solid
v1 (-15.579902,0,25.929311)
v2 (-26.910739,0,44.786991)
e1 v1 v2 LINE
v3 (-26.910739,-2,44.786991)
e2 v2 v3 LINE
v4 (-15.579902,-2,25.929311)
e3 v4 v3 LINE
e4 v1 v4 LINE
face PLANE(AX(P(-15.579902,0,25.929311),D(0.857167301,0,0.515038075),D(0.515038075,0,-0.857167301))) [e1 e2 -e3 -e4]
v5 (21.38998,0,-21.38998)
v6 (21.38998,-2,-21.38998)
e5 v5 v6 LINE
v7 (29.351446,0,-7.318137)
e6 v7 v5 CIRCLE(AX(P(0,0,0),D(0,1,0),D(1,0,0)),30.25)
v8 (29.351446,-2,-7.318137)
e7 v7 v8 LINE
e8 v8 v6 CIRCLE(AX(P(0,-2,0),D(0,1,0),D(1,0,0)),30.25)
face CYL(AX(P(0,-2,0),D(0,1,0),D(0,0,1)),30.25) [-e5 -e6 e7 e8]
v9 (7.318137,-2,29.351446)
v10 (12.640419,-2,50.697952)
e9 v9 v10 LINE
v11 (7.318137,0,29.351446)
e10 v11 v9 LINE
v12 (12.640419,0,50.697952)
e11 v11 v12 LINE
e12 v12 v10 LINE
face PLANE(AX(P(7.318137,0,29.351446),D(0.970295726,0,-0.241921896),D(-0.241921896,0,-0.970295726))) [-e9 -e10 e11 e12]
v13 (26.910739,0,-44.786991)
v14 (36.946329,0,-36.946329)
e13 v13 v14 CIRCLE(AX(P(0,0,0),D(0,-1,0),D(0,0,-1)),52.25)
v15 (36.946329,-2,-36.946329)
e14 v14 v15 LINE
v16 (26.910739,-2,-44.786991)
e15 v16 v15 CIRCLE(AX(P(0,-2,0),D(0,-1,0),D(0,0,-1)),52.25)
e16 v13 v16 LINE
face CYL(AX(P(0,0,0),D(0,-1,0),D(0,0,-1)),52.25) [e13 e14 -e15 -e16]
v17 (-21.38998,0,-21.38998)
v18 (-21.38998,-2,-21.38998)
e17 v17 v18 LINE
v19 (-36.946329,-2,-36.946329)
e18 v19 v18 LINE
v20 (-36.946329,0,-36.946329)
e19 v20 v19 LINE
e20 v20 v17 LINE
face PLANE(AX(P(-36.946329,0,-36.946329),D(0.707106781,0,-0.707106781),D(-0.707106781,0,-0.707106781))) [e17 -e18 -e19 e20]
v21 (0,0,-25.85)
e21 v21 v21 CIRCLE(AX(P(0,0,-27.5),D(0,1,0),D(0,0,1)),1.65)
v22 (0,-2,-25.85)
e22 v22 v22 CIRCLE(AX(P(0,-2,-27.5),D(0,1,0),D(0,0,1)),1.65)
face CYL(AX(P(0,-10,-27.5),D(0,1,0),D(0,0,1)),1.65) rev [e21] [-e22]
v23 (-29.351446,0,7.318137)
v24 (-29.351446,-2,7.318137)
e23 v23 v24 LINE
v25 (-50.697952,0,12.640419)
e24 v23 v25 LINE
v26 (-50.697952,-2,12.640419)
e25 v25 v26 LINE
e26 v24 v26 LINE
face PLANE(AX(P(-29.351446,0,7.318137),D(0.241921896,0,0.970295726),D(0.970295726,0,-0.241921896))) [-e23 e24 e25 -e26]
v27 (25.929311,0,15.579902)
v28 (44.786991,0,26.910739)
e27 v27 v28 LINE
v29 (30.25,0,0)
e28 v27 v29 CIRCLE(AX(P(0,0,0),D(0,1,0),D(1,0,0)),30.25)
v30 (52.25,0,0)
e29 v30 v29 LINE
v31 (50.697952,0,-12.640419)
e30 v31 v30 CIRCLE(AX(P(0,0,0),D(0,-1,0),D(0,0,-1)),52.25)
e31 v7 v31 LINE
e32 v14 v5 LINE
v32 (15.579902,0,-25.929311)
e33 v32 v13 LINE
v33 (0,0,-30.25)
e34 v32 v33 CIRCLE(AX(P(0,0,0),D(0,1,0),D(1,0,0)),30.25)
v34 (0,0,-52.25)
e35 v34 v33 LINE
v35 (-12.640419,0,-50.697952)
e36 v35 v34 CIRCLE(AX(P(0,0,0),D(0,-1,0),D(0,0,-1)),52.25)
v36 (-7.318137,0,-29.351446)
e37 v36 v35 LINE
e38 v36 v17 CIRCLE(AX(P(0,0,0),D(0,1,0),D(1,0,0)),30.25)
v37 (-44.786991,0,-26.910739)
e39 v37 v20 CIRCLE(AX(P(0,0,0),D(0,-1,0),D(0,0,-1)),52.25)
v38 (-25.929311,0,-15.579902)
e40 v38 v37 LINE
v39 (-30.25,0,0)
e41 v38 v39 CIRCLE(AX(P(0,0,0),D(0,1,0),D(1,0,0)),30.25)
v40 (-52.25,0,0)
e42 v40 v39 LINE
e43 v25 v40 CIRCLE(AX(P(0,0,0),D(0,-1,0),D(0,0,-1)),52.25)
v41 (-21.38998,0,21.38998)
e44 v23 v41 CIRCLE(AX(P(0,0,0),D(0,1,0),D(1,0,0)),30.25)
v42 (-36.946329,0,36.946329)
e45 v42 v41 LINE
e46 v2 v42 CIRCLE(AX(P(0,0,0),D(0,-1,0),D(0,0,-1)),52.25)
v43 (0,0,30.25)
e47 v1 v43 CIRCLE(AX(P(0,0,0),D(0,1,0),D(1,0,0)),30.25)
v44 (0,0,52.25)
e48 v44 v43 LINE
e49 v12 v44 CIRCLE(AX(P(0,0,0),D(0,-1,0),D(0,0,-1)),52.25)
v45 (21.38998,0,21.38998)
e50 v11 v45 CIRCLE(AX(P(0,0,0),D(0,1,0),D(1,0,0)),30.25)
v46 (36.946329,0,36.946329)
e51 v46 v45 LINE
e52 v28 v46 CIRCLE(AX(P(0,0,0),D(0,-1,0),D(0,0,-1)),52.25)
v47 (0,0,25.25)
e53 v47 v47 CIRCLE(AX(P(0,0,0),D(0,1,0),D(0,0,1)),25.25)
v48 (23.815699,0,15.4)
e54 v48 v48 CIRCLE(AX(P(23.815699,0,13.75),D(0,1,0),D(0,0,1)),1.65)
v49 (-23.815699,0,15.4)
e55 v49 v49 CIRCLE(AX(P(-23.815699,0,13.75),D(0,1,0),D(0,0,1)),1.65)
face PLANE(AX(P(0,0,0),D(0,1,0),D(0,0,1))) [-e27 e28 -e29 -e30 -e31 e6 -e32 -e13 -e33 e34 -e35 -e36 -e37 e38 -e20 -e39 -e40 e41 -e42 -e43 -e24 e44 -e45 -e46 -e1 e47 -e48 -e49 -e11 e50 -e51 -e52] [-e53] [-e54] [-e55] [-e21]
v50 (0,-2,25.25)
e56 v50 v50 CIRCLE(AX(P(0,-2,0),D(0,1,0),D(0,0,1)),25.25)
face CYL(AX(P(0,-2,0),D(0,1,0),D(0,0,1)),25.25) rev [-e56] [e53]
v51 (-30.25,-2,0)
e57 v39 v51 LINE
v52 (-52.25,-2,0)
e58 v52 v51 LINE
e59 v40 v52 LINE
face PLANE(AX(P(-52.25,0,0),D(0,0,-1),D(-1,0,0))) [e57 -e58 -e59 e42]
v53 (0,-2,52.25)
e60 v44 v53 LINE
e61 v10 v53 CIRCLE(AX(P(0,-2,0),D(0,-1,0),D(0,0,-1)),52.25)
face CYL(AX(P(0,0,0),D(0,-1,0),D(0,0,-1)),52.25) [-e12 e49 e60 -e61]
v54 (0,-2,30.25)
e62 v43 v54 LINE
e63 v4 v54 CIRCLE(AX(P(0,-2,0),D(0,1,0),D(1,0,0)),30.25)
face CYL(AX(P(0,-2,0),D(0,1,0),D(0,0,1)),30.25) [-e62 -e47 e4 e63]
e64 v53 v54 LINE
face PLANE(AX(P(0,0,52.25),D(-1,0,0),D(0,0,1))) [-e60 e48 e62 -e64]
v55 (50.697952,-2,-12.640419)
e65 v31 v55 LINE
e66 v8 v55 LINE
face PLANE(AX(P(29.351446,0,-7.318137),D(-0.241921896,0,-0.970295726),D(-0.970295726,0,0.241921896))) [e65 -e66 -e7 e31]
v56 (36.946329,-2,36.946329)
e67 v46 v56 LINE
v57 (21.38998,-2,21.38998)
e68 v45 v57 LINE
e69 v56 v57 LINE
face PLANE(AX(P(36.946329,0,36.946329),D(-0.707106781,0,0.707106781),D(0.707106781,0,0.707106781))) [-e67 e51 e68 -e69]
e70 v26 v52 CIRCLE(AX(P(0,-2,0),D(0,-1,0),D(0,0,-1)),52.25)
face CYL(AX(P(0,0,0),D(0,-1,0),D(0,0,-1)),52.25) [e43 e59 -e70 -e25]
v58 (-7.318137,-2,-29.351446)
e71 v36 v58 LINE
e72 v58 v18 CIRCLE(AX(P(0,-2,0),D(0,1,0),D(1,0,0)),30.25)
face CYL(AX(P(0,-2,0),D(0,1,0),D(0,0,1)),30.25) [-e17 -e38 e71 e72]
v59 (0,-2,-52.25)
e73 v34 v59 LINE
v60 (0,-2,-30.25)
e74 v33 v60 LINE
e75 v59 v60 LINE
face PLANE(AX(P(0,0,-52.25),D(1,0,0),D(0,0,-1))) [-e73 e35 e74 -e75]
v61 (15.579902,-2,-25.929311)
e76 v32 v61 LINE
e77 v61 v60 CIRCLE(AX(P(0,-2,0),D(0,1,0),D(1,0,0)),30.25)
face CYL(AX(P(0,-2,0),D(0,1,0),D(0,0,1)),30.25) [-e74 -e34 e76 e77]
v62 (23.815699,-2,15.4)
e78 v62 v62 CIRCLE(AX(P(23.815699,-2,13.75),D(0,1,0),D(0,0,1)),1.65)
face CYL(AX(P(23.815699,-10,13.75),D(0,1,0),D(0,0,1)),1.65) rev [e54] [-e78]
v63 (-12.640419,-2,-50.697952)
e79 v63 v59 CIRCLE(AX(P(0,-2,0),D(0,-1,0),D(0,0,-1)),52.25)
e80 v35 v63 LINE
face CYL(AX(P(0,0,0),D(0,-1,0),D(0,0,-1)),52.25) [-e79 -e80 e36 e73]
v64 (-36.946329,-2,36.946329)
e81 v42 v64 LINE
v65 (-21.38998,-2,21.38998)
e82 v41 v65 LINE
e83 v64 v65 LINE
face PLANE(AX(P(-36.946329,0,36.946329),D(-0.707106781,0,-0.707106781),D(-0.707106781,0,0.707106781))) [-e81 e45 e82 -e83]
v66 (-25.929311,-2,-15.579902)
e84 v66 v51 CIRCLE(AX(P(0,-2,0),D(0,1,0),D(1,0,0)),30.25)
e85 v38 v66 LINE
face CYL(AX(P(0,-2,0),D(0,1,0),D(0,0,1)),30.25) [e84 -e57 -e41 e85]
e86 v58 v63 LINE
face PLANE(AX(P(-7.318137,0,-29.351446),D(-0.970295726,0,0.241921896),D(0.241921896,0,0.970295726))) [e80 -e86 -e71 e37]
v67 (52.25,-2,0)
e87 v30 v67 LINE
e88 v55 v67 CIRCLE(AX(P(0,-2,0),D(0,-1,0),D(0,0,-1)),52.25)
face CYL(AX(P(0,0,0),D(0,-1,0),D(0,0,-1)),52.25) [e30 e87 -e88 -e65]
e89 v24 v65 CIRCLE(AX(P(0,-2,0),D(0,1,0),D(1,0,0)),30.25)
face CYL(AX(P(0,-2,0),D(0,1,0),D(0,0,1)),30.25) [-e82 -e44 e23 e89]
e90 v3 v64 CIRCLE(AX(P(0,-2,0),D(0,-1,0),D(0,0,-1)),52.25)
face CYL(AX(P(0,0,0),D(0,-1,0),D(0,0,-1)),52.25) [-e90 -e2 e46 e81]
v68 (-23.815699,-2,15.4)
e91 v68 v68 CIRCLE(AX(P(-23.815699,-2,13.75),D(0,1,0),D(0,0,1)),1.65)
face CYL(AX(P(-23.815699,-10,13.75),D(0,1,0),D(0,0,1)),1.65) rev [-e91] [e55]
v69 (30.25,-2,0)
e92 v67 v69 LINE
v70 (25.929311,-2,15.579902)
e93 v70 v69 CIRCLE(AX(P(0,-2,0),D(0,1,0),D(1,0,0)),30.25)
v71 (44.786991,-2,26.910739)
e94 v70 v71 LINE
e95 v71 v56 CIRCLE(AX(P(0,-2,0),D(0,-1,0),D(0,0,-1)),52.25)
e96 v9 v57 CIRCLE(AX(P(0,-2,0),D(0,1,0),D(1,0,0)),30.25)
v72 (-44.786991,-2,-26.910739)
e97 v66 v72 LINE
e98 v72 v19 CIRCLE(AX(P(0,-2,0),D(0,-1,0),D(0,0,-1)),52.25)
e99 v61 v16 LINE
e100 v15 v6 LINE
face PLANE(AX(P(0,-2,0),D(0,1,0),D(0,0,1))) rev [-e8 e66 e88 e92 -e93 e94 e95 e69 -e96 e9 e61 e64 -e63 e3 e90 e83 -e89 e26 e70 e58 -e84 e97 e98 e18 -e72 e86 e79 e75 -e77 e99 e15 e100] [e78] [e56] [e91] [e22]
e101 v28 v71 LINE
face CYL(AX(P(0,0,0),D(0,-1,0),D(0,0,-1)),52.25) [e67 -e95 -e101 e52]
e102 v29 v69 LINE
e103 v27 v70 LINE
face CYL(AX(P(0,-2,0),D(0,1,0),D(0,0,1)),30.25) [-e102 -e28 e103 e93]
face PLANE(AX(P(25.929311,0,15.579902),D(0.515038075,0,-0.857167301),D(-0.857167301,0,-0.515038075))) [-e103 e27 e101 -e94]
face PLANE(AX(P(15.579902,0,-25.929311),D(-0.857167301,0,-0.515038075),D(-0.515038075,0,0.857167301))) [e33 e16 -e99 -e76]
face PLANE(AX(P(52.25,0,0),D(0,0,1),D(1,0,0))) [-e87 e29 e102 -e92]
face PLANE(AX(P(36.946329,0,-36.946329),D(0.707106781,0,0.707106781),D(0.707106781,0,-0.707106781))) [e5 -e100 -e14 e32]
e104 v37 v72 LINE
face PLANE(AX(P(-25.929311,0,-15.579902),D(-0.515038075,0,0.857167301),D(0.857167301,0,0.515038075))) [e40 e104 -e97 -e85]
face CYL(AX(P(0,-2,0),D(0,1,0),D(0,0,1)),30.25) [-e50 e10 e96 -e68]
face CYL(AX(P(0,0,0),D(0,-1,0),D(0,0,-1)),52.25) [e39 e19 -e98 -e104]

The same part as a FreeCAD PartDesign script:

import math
import FreeCAD as App
import Part
import Sketcher
Q = App.Units.Quantity

doc = App.newDocument("Part")
body = doc.addObject("PartDesign::Body", "Body")

sketch1 = body.newObject("Sketcher::SketchObject", "Sketch")
sketch1.AttachmentSupport = (doc.getObject("XZ_Plane"), [""])
sketch1.MapMode = "FlatFace"
sketch1.addGeometry([
    Part.Circle(App.Vector(0, 0, 0), App.Vector(0, 0, 1), 30),
    Part.Circle(App.Vector(0, 0, 0), App.Vector(0, 0, 1), 25),
], False)
sketch1.addConstraint([
    Sketcher.Constraint("Coincident", 0, 3, -1, 1),
    Sketcher.Constraint("Coincident", 1, 3, -1, 1),
    Sketcher.Constraint("Diameter", 0, Q("60.5 mm")),
    Sketcher.Constraint("Diameter", 1, Q("50.5 mm")),
])
pad1 = body.newObject("PartDesign::Pad", "Pad")
pad1.Profile = sketch1
pad1.Length = 2

sketch2 = body.newObject("Sketcher::SketchObject", "Sketch001")
sketch2.AttachmentSupport = (doc.getObject("XZ_Plane"), [""])
sketch2.MapMode = "FlatFace"
sketch2.addGeometry([
    Part.Circle(App.Vector(0, -27.5, 0), App.Vector(0, 0, 1), 1.6),
    Part.Circle(App.Vector(23.8, 13.8, 0), App.Vector(0, 0, 1), 1.6),
    Part.Circle(App.Vector(-23.8, 13.8, 0), App.Vector(0, 0, 1), 1.6),
], False)
sketch2.addConstraint([
    Sketcher.Constraint("Equal", 0, 1),
    Sketcher.Constraint("Equal", 1, 2),
    Sketcher.Constraint("Symmetric", 1, 3, 2, 3, -2),
    Sketcher.Constraint("PointOnObject", 0, 3, -2),
    Sketcher.Constraint("Diameter", 0, Q("3.3 mm")),
    Sketcher.Constraint("DistanceY", 0, 3, -1, 1, Q("27.5 mm")),
    Sketcher.Constraint("DistanceY", -1, 1, 1, 3, Q("13.75 mm")),
    Sketcher.Constraint("DistanceX", -1, 1, 1, 3, Q("23.815699 mm")),
])
pocket1 = body.newObject("PartDesign::Pocket", "Pocket")
pocket1.Profile = sketch2
pocket1.Length = 10
pocket1.Reversed = True

sketch3 = body.newObject("Sketcher::SketchObject", "Sketch002")
sketch3.AttachmentSupport = (doc.getObject("XZ_Plane"), [""])
sketch3.MapMode = "FlatFace"
sketch3.AttachmentOffset = App.Placement(App.Vector(0, 0, 2), App.Rotation())
sketch3.addGeometry([
    Part.LineSegment(App.Vector(0, 52, 0), App.Vector(0, 30, 0)),
    Part.ArcOfCircle(Part.Circle(App.Vector(0, 0, 0), App.Vector(0, 0, 1), 30), math.radians(76), math.radians(90)),
    Part.LineSegment(App.Vector(7, 29, 0), App.Vector(13, 51, 0)),
    Part.ArcOfCircle(Part.Circle(App.Vector(0, 0, 0), App.Vector(0, 0, 1), 52), math.radians(76), math.radians(90)),
    Part.LineSegment(App.Vector(37, 37, 0), App.Vector(21, 21, 0)),
    Part.ArcOfCircle(Part.Circle(App.Vector(0, 0, 0), App.Vector(0, 0, 1), 30), math.radians(31), math.radians(45)),
    Part.LineSegment(App.Vector(26, 16, 0), App.Vector(45, 27, 0)),
    Part.ArcOfCircle(Part.Circle(App.Vector(0, 0, 0), App.Vector(0, 0, 1), 52), math.radians(31), math.radians(45)),
    Part.LineSegment(App.Vector(52, 0, 0), App.Vector(30, 0, 0)),
    Part.ArcOfCircle(Part.Circle(App.Vector(0, 0, 0), App.Vector(0, 0, 1), 30), math.radians(-14), math.radians(0)),
    Part.LineSegment(App.Vector(29, -7, 0), App.Vector(51, -13, 0)),
    Part.ArcOfCircle(Part.Circle(App.Vector(0, 0, 0), App.Vector(0, 0, 1), 52), math.radians(-14), math.radians(0)),
    Part.LineSegment(App.Vector(37, -37, 0), App.Vector(21, -21, 0)),
    Part.ArcOfCircle(Part.Circle(App.Vector(0, 0, 0), App.Vector(0, 0, 1), 30), math.radians(-59), math.radians(-45)),
    Part.LineSegment(App.Vector(16, -26, 0), App.Vector(27, -45, 0)),
    Part.ArcOfCircle(Part.Circle(App.Vector(0, 0, 0), App.Vector(0, 0, 1), 52), math.radians(-59), math.radians(-45)),
    Part.LineSegment(App.Vector(0, -52, 0), App.Vector(0, -30, 0)),
    Part.ArcOfCircle(Part.Circle(App.Vector(0, 0, 0), App.Vector(0, 0, 1), 30), math.radians(-104), math.radians(-90)),
    Part.LineSegment(App.Vector(-7, -29, 0), App.Vector(-13, -51, 0)),
    Part.ArcOfCircle(Part.Circle(App.Vector(0, 0, 0), App.Vector(0, 0, 1), 52), math.radians(-104), math.radians(-90)),
    Part.LineSegment(App.Vector(-37, -37, 0), App.Vector(-21, -21, 0)),
    Part.ArcOfCircle(Part.Circle(App.Vector(0, 0, 0), App.Vector(0, 0, 1), 30), math.radians(-149), math.radians(-135)),
    Part.LineSegment(App.Vector(-26, -16, 0), App.Vector(-45, -27, 0)),
    Part.ArcOfCircle(Part.Circle(App.Vector(0, 0, 0), App.Vector(0, 0, 1), 52), math.radians(-149), math.radians(-135)),
    Part.LineSegment(App.Vector(-52, 0, 0), App.Vector(-30, 0, 0)),
    Part.ArcOfCircle(Part.Circle(App.Vector(0, 0, 0), App.Vector(0, 0, 1), 30), math.radians(166), math.radians(180)),
    Part.LineSegment(App.Vector(-29, 7, 0), App.Vector(-51, 13, 0)),
    Part.ArcOfCircle(Part.Circle(App.Vector(0, 0, 0), App.Vector(0, 0, 1), 52), math.radians(166), math.radians(180)),
    Part.LineSegment(App.Vector(-37, 37, 0), App.Vector(-21, 21, 0)),
    Part.ArcOfCircle(Part.Circle(App.Vector(0, 0, 0), App.Vector(0, 0, 1), 30), math.radians(121), math.radians(135)),
    Part.LineSegment(App.Vector(-16, 26, 0), App.Vector(-27, 45, 0)),
    Part.ArcOfCircle(Part.Circle(App.Vector(0, 0, 0), App.Vector(0, 0, 1), 52), math.radians(121), math.radians(135)),
], False)
sketch3.addConstraint([
    Sketcher.Constraint("Coincident", 0, 2, 1, 2),
    Sketcher.Constraint("Coincident", 1, 1, 2, 1),
    Sketcher.Constraint("Coincident", 2, 2, 3, 1),
    Sketcher.Constraint("Coincident", 3, 2, 0, 1),
    Sketcher.Constraint("Coincident", 4, 2, 5, 2),
    Sketcher.Constraint("Coincident", 5, 1, 6, 1),
    Sketcher.Constraint("Coincident", 6, 2, 7, 1),
    Sketcher.Constraint("Coincident", 7, 2, 4, 1),
    Sketcher.Constraint("Coincident", 8, 2, 9, 2),
    Sketcher.Constraint("Coincident", 9, 1, 10, 1),
    Sketcher.Constraint("Coincident", 10, 2, 11, 1),
    Sketcher.Constraint("Coincident", 11, 2, 8, 1),
    Sketcher.Constraint("Coincident", 12, 2, 13, 2),
    Sketcher.Constraint("Coincident", 13, 1, 14, 1),
    Sketcher.Constraint("Coincident", 14, 2, 15, 1),
    Sketcher.Constraint("Coincident", 15, 2, 12, 1),
    Sketcher.Constraint("Coincident", 16, 2, 17, 2),
    Sketcher.Constraint("Coincident", 17, 1, 18, 1),
    Sketcher.Constraint("Coincident", 18, 2, 19, 1),
    Sketcher.Constraint("Coincident", 19, 2, 16, 1),
    Sketcher.Constraint("Coincident", 20, 2, 21, 2),
    Sketcher.Constraint("Coincident", 21, 1, 22, 1),
    Sketcher.Constraint("Coincident", 22, 2, 23, 1),
    Sketcher.Constraint("Coincident", 23, 2, 20, 1),
    Sketcher.Constraint("Coincident", 24, 2, 25, 2),
    Sketcher.Constraint("Coincident", 25, 1, 26, 1),
    Sketcher.Constraint("Coincident", 26, 2, 27, 1),
    Sketcher.Constraint("Coincident", 27, 2, 24, 1),
    Sketcher.Constraint("Coincident", 28, 2, 29, 2),
    Sketcher.Constraint("Coincident", 29, 1, 30, 1),
    Sketcher.Constraint("Coincident", 30, 2, 31, 1),
    Sketcher.Constraint("Coincident", 31, 2, 28, 1),
    Sketcher.Constraint("Vertical", 0),
    Sketcher.Constraint("Horizontal", 8),
    Sketcher.Constraint("Vertical", 16),
    Sketcher.Constraint("Horizontal", 24),
    Sketcher.Constraint("Coincident", 1, 3, -1, 1),
    Sketcher.Constraint("Coincident", 3, 3, -1, 1),
    Sketcher.Constraint("Coincident", 5, 3, -1, 1),
    Sketcher.Constraint("Coincident", 7, 3, -1, 1),
    Sketcher.Constraint("Coincident", 9, 3, -1, 1),
    Sketcher.Constraint("Coincident", 11, 3, -1, 1),
    Sketcher.Constraint("Coincident", 13, 3, -1, 1),
    Sketcher.Constraint("Coincident", 15, 3, -1, 1),
    Sketcher.Constraint("Coincident", 17, 3, -1, 1),
    Sketcher.Constraint("Coincident", 19, 3, -1, 1),
    Sketcher.Constraint("Coincident", 21, 3, -1, 1),
    Sketcher.Constraint("Coincident", 23, 3, -1, 1),
    Sketcher.Constraint("Coincident", 25, 3, -1, 1),
    Sketcher.Constraint("Coincident", 27, 3, -1, 1),
    Sketcher.Constraint("Coincident", 29, 3, -1, 1),
    Sketcher.Constraint("Coincident", 31, 3, -1, 1),
    Sketcher.Constraint("Equal", 1, 5),
    Sketcher.Constraint("Equal", 3, 7),
    Sketcher.Constraint("Equal", 5, 9),
    Sketcher.Constraint("Equal", 7, 11),
    Sketcher.Constraint("Equal", 9, 13),
    Sketcher.Constraint("Equal", 11, 15),
    Sketcher.Constraint("Equal", 13, 17),
    Sketcher.Constraint("Equal", 15, 19),
    Sketcher.Constraint("Equal", 17, 21),
    Sketcher.Constraint("Equal", 19, 23),
    Sketcher.Constraint("Equal", 21, 25),
    Sketcher.Constraint("Equal", 23, 27),
    Sketcher.Constraint("Equal", 25, 29),
    Sketcher.Constraint("Equal", 27, 31),
    Sketcher.Constraint("PointOnObject", 0, 2, -2),
    Sketcher.Constraint("PointOnObject", 8, 2, -1),
    Sketcher.Constraint("PointOnObject", 16, 2, -2),
    Sketcher.Constraint("PointOnObject", 24, 2, -1),
    Sketcher.Constraint("Perpendicular", 2, 10),
    Sketcher.Constraint("Perpendicular", 4, 12),
    Sketcher.Constraint("Perpendicular", 6, 14),
    Sketcher.Constraint("Perpendicular", 10, 18),
    Sketcher.Constraint("Perpendicular", 12, 20),
    Sketcher.Constraint("Perpendicular", 14, 22),
    Sketcher.Constraint("Perpendicular", 18, 26),
    Sketcher.Constraint("Perpendicular", 20, 28),
    Sketcher.Constraint("Perpendicular", 22, 30),
    Sketcher.Constraint("Horizontal", 12, 2, 20, 2),
    Sketcher.Constraint("Horizontal", 15, 2, 23, 2),
    Sketcher.Constraint("Horizontal", 4, 2, 28, 2),
    Sketcher.Constraint("Vertical", 4, 2, 12, 2),
    Sketcher.Constraint("DistanceX", 8, 2, 8, 1, Q("22 mm")),
    Sketcher.Constraint("Angle", 2, Q("76 deg")),
    Sketcher.Constraint("Angle", 6, Q("31 deg")),
    Sketcher.Constraint("Radius", 1, Q("30.25 mm")),
    Sketcher.Constraint("DistanceY", -1, 1, 5, 1, Q("15.579902 mm")),
    Sketcher.Constraint("DistanceX", -1, 1, 13, 1, Q("15.579902 mm")),
    Sketcher.Constraint("DistanceY", 21, 1, -1, 1, Q("15.579902 mm")),
    Sketcher.Constraint("DistanceX", 29, 1, -1, 1, Q("15.579902 mm")),
    Sketcher.Constraint("DistanceY", 10, 2, 4, 2, Q("34.030399 mm")),
    Sketcher.Constraint("DistanceX", 18, 2, 12, 2, Q("34.030399 mm")),
    Sketcher.Constraint("DistanceY", 20, 2, 26, 2, Q("34.030399 mm")),
    Sketcher.Constraint("DistanceX", -1, 1, 2, 2, Q("12.640419 mm")),
    Sketcher.Constraint("DistanceX", -1, 1, 4, 2, Q("21.38998 mm")),
])
pad2 = body.newObject("PartDesign::Pad", "Pad001")
pad2.Profile = sketch3
pad2.Length = 2
pad2.Reversed = True

doc.recompute()
